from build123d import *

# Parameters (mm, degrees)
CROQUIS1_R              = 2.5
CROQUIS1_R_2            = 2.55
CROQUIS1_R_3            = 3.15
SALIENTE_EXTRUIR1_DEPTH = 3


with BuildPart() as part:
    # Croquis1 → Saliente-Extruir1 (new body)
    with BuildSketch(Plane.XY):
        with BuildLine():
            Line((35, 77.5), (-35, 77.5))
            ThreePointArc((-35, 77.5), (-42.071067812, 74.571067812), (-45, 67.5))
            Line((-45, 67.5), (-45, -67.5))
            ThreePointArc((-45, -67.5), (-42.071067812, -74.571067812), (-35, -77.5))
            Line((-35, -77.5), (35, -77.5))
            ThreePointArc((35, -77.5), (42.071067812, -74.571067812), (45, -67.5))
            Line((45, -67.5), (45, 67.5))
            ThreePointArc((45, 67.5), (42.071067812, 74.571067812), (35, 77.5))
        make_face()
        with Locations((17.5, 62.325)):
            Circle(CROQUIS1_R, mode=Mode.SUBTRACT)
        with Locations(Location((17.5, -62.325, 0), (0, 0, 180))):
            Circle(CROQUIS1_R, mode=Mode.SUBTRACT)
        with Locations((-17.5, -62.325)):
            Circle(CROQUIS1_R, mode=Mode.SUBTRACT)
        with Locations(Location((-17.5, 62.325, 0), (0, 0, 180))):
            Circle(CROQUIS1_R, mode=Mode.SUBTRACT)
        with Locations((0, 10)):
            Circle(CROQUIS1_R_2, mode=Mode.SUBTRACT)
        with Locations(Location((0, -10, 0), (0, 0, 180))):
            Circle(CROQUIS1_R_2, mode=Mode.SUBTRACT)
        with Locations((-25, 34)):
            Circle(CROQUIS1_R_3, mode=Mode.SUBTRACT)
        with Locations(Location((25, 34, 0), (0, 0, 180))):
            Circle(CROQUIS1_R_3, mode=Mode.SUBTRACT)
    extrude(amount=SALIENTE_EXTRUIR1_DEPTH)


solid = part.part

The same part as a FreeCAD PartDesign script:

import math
import FreeCAD as App
import Part
import Sketcher
Q = App.Units.Quantity

doc = App.newDocument("Part")
params = doc.addObject("Spreadsheet::Sheet", "Params")
for row, (alias, value) in enumerate([
    ("sketch1_diameter", "5 mm"),
    ("sketch1_radius", "10 mm"),
    ("sketch1_diameter2", "5.1 mm"),
    ("sketch1_diameter3", "6.3 mm"),
    ("sketch1_width", "70 mm"),
    ("pad1_length", "3 mm"),
], start=1):
    params.set(f"A{row}", alias)
    params.set(f"B{row}", "=" + value)
    params.setAlias(f"B{row}", alias)

body = doc.addObject("PartDesign::Body", "Body")

# Sketch on XY plane
sketch1 = body.newObject("Sketcher::SketchObject", "Sketch")
sketch1.AttachmentSupport = (doc.getObject("XY_Plane"), [""])
sketch1.MapMode = "FlatFace"
sketch1.addGeometry(Part.LineSegment(App.Vector(35, 77.5, 0), App.Vector(-35, 77.5, 0)), False)
sketch1.addGeometry(Part.ArcOfCircle(Part.Circle(App.Vector(-35, 67.5, 0), App.Vector(0, 0, 1), 10), math.radians(90), math.radians(180)), False)
sketch1.addGeometry(Part.LineSegment(App.Vector(-45, 67.5, 0), App.Vector(-45, -67.5, 0)), False)
sketch1.addGeometry(Part.ArcOfCircle(Part.Circle(App.Vector(-35, -67.5, 0), App.Vector(0, 0, 1), 10), math.radians(180), math.radians(270)), False)
sketch1.addGeometry(Part.LineSegment(App.Vector(-35, -77.5, 0), App.Vector(35, -77.5, 0)), False)
sketch1.addGeometry(Part.ArcOfCircle(Part.Circle(App.Vector(35, -67.5, 0), App.Vector(0, 0, 1), 10), math.radians(-90), math.radians(0)), False)
sketch1.addGeometry(Part.LineSegment(App.Vector(45, -67.5, 0), App.Vector(45, 67.5, 0)), False)
sketch1.addGeometry(Part.ArcOfCircle(Part.Circle(App.Vector(35, 67.5, 0), App.Vector(0, 0, 1), 10), math.radians(0), math.radians(90)), False)
sketch1.addGeometry(Part.Circle(App.Vector(-17.5, -62.3, 0), App.Vector(0, 0, 1), 2.5), False)
sketch1.addGeometry(Part.Circle(App.Vector(17.5, -62.3, 0), App.Vector(0, 0, 1), 2.5), False)
sketch1.addGeometry(Part.Circle(App.Vector(0, -10, 0), App.Vector(0, 0, 1), 2.5), False)
sketch1.addGeometry(Part.Circle(App.Vector(-25, 34, 0), App.Vector(0, 0, 1), 3.1), False)
sketch1.addGeometry(Part.Circle(App.Vector(-17.5, 62.3, 0), App.Vector(0, 0, 1), 2.5), False)
sketch1.addGeometry(Part.Circle(App.Vector(0, 10, 0), App.Vector(0, 0, 1), 2.5), False)
sketch1.addGeometry(Part.Circle(App.Vector(25, 34, 0), App.Vector(0, 0, 1), 3.1), False)
sketch1.addGeometry(Part.Circle(App.Vector(17.5, 62.3, 0), App.Vector(0, 0, 1), 2.5), False)
sketch1.addConstraint(Sketcher.Constraint("Tangent", 0, 2, 1, 1))
sketch1.addConstraint(Sketcher.Constraint("Tangent", 1, 2, 2, 1))
sketch1.addConstraint(Sketcher.Constraint("Tangent", 2, 2, 3, 1))
sketch1.addConstraint(Sketcher.Constraint("Tangent", 3, 2, 4, 1))
sketch1.addConstraint(Sketcher.Constraint("Tangent", 4, 2, 5, 1))
sketch1.addConstraint(Sketcher.Constraint("Tangent", 5, 2, 6, 1))
sketch1.addConstraint(Sketcher.Constraint("Tangent", 6, 2, 7, 1))
sketch1.addConstraint(Sketcher.Constraint("Tangent", 7, 2, 0, 1))
sketch1.addConstraint(Sketcher.Constraint("Horizontal", 0))
sketch1.addConstraint(Sketcher.Constraint("Vertical", 2))
sketch1.addConstraint(Sketcher.Constraint("Horizontal", 4))
sketch1.addConstraint(Sketcher.Constraint("Vertical", 6))
sketch1.addConstraint(Sketcher.Constraint("Equal", 1, 3))
sketch1.addConstraint(Sketcher.Constraint("Equal", 3, 5))
sketch1.addConstraint(Sketcher.Constraint("Equal", 5, 7))
sketch1.addConstraint(Sketcher.Constraint("Equal", 8, 9))
sketch1.addConstraint(Sketcher.Constraint("Equal", 9, 12))
sketch1.addConstraint(Sketcher.Constraint("Equal", 10, 13))
sketch1.addConstraint(Sketcher.Constraint("Equal", 11, 14))
sketch1.addConstraint(Sketcher.Constraint("Equal", 12, 15))
sketch1.addConstraint(Sketcher.Constraint("Symmetric", 1, 3, 5, 3, -1, 1))
sketch1.addConstraint(Sketcher.Constraint("Symmetric", 9, 3, 12, 3, -1, 1))
sketch1.addConstraint(Sketcher.Constraint("Symmetric", 10, 3, 13, 3, -1, 1))
sketch1.addConstraint(Sketcher.Constraint("Symmetric", 8, 3, 15, 3, -1, 1))
sketch1.addConstraint(Sketcher.Constraint("Symmetric", 8, 3, 9, 3, -2))
sketch1.addConstraint(Sketcher.Constraint("Symmetric", 11, 3, 14, 3, -2))
sketch1.addConstraint(Sketcher.Constraint("PointOnObject", 10, 3, -2))
sketch1.addConstraint(Sketcher.Constraint("Diameter", 8, Q("5 mm")))
sketch1.addConstraint(Sketcher.Constraint("Radius", 1, Q("10 mm")))
sketch1.addConstraint(Sketcher.Constraint("Diameter", 10, Q("5.1 mm")))
sketch1.addConstraint(Sketcher.Constraint("Diameter", 11, Q("6.3 mm")))
sketch1.addConstraint(Sketcher.Constraint("DistanceX", 0, 2, 0, 1, Q("70 mm")))
sketch1.addConstraint(Sketcher.Constraint("DistanceY", 2, 2, 2, 1, Q("135 mm")))
sketch1.addConstraint(Sketcher.Constraint("DistanceY", 10, 3, -1, 1, Q("10 mm")))
sketch1.addConstraint(Sketcher.Constraint("DistanceX", 11, 3, -1, 1, Q("25 mm")))
sketch1.addConstraint(Sketcher.Constraint("DistanceY", -1, 1, 11, 3, Q("34 mm")))
sketch1.addConstraint(Sketcher.Constraint("DistanceX", 8, 3, 9, 3, Q("35 mm")))
sketch1.addConstraint(Sketcher.Constraint("DistanceY", 8, 3, 12, 3, Q("124.65 mm")))
sketch1.setExpression("Constraints[27]", "Params.sketch1_diameter")
sketch1.setExpression("Constraints[28]", "Params.sketch1_radius")
sketch1.setExpression("Constraints[29]", "Params.sketch1_diameter2")
sketch1.setExpression("Constraints[30]", "Params.sketch1_diameter3")
sketch1.setExpression("Constraints[31]", "Params.sketch1_width")
pad1 = body.newObject("PartDesign::Pad", "Pad")
pad1.Profile = sketch1
pad1.setExpression("Length", "Params.pad1_length")

doc.recompute()
